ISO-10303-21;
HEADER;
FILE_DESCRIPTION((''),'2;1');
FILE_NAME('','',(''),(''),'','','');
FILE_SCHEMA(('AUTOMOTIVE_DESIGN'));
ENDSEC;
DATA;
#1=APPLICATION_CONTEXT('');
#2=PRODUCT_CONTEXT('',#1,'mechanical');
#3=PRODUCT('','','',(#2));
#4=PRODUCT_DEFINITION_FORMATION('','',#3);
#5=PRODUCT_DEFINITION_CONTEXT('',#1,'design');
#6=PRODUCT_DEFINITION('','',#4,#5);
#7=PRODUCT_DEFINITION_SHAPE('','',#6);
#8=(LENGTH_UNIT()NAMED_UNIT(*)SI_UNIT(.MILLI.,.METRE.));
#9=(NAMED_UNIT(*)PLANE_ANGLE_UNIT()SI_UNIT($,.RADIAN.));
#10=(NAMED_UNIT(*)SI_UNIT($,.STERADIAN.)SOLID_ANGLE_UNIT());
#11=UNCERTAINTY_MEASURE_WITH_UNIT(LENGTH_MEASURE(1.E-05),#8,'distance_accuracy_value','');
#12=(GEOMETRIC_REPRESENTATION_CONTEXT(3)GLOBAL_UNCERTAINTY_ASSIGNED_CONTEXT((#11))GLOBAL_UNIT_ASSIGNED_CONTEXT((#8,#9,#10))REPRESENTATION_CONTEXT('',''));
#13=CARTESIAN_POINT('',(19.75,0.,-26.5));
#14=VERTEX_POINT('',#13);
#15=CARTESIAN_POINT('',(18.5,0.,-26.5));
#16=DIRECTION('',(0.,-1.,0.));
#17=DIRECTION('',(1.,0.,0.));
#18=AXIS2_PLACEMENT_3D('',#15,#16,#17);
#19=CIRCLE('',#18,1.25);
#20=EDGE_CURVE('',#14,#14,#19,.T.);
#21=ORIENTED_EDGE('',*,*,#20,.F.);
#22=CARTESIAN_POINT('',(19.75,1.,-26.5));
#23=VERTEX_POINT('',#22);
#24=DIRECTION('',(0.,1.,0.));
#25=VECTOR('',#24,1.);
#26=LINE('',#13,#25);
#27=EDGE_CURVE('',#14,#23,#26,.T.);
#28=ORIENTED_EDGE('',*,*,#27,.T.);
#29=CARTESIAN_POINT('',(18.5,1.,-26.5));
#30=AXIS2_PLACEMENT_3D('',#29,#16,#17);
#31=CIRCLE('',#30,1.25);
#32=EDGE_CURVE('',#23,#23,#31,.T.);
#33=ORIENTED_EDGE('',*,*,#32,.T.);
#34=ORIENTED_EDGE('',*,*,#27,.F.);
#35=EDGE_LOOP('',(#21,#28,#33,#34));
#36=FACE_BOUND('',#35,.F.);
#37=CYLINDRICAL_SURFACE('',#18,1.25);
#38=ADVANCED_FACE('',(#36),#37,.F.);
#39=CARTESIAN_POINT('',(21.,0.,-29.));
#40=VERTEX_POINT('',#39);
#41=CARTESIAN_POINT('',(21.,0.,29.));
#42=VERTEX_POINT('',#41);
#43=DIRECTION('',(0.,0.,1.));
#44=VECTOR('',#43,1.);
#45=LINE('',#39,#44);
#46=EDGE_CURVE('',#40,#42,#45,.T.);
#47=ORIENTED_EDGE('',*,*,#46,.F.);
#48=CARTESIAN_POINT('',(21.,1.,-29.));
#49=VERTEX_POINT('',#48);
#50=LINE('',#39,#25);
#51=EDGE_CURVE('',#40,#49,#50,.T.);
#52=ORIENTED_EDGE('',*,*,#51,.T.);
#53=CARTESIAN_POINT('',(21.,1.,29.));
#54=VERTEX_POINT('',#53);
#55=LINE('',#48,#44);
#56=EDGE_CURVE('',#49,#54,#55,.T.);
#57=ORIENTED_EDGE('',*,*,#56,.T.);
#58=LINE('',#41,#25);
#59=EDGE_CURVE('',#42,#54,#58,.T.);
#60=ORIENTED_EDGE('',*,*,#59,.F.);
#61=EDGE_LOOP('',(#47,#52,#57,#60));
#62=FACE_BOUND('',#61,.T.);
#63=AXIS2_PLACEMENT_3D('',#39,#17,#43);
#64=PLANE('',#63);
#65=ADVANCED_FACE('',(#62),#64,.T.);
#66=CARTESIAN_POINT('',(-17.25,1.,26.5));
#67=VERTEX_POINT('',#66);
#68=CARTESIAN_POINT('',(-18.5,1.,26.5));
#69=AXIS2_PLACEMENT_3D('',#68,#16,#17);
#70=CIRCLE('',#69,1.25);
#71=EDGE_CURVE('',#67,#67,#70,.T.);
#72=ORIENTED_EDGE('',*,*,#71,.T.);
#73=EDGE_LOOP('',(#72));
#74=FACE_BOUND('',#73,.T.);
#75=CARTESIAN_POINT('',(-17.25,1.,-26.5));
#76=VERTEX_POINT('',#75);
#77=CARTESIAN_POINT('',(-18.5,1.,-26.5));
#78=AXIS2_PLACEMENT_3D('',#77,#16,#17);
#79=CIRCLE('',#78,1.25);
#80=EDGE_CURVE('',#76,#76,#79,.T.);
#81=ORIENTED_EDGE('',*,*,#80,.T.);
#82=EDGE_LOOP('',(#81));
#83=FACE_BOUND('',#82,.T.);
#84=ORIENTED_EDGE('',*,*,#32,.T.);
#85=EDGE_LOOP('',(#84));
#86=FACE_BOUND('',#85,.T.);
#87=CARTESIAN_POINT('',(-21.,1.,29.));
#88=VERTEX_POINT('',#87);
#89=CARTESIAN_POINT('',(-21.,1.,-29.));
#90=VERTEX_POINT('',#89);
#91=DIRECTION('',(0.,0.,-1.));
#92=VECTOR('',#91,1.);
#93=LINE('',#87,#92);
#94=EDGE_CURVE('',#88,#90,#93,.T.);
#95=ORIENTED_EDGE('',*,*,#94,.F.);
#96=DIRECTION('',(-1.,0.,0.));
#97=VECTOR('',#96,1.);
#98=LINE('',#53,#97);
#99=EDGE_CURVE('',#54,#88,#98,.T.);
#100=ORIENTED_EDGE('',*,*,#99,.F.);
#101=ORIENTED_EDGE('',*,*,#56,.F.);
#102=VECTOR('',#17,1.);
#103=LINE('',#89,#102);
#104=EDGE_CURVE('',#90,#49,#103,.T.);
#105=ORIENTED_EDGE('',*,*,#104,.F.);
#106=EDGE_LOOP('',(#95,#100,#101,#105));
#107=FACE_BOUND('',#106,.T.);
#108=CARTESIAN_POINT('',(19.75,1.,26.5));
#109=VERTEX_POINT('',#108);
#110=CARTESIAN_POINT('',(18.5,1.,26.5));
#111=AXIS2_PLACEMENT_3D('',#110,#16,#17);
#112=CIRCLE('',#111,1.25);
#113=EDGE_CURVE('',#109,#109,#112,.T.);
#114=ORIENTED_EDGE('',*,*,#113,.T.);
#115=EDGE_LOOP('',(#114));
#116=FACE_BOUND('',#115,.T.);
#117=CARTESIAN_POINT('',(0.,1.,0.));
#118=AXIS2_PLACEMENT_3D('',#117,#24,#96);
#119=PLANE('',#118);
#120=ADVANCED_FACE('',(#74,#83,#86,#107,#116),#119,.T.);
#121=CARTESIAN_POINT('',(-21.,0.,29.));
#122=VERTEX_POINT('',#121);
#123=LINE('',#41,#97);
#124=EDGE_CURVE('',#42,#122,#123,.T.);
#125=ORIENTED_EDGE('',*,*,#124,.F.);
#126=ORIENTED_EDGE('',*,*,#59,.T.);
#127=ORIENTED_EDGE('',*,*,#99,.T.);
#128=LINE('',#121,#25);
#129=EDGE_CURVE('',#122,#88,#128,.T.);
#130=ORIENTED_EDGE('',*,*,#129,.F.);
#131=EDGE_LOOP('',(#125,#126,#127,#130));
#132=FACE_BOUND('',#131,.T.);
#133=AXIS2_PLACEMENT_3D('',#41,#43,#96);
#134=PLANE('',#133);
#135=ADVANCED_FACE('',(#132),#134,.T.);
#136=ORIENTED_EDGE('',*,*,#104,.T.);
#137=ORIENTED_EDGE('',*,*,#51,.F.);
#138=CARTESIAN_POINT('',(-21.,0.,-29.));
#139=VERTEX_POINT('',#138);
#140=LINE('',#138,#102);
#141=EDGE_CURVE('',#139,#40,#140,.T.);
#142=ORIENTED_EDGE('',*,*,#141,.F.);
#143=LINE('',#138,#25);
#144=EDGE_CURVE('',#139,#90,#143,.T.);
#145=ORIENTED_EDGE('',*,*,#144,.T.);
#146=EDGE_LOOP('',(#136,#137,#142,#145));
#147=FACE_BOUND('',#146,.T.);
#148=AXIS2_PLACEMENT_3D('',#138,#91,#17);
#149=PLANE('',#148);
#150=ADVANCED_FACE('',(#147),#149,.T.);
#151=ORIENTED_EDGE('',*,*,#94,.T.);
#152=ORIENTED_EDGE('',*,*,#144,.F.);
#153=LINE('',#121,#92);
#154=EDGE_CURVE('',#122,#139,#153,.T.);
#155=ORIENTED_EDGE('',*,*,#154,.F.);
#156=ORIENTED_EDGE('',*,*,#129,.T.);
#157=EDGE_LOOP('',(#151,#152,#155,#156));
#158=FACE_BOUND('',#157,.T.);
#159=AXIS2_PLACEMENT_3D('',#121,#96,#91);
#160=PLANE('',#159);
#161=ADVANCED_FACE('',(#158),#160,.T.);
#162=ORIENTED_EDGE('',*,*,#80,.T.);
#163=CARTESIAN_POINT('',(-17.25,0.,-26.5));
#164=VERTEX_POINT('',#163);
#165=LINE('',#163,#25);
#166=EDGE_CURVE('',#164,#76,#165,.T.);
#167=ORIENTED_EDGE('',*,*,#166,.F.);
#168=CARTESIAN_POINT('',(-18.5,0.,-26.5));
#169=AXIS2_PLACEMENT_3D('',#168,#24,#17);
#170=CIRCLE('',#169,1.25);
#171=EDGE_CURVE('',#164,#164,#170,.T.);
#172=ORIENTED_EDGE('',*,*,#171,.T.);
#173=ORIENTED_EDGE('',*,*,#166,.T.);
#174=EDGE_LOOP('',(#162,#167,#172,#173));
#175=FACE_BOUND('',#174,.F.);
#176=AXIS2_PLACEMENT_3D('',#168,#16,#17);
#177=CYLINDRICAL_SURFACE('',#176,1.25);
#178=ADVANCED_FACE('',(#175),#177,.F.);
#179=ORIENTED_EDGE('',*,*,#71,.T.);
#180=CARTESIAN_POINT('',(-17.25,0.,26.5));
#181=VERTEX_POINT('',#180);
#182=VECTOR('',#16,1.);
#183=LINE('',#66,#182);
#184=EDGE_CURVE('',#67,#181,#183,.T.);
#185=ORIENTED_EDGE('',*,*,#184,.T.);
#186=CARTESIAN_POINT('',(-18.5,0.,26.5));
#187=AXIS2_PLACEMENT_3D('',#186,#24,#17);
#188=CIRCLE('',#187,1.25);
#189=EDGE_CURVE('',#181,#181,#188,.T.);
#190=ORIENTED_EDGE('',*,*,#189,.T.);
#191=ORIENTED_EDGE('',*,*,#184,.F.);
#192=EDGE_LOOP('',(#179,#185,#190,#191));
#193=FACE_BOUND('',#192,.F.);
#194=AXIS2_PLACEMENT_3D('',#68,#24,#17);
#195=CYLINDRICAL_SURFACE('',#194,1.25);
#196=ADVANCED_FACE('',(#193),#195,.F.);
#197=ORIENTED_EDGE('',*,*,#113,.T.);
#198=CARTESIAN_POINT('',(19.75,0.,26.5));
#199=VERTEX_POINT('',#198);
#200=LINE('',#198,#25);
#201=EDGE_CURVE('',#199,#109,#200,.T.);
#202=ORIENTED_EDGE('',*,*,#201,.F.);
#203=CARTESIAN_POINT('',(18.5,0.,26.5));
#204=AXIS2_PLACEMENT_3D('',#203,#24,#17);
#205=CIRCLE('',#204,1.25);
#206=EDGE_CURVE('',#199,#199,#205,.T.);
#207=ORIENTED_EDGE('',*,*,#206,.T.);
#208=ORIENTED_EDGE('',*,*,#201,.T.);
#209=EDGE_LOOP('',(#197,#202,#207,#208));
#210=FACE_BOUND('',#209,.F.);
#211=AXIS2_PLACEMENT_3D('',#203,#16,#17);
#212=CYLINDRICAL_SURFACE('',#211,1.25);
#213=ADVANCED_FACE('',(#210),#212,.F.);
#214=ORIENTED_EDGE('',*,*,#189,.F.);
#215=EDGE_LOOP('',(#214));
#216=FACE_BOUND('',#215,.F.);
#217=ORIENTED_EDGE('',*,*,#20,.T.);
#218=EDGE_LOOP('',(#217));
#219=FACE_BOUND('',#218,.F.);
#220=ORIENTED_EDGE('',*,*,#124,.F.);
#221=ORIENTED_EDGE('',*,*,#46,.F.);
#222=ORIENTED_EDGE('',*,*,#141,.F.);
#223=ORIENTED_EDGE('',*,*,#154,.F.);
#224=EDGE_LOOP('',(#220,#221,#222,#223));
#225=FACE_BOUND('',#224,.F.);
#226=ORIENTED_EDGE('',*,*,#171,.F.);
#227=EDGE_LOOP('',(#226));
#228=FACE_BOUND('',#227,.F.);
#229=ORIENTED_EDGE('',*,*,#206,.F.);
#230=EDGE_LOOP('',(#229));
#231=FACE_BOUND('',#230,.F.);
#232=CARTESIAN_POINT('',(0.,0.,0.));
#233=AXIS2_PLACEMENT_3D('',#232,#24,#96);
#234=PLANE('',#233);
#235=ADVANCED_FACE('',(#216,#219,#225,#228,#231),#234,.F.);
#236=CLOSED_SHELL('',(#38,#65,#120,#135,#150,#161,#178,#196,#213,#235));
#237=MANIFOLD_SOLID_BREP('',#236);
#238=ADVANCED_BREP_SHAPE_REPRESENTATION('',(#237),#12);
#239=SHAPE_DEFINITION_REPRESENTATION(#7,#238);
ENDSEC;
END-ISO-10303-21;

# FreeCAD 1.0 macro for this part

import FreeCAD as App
import Part
import Sketcher


def add_polygon(sketch, points):
    """Adds a closed chain of lines whose ends are joined by coincident constraints."""
    first, n = sketch.GeometryCount, len(points)
    for a, b in zip(points, points[1:] + points[:1]):
        sketch.addGeometry(Part.LineSegment(App.Vector(*a, 0), App.Vector(*b, 0)), False)
    for i in range(n):
        sketch.addConstraint(Sketcher.Constraint("Coincident", first + i, 2, first + (i + 1) % n, 1))

doc = App.newDocument("Part")
body = doc.addObject("PartDesign::Body", "Body")

sketch1 = body.newObject("Sketcher::SketchObject", "Sketch")
sketch1.AttachmentSupport = (doc.getObject("XZ_Plane"), [""])
sketch1.MapMode = "FlatFace"
add_polygon(sketch1, [(-21, 29), (21, 29), (21, -29), (-21, -29)])
sketch1.addConstraint(Sketcher.Constraint("Horizontal", 0))
sketch1.addConstraint(Sketcher.Constraint("Vertical", 1))
sketch1.addConstraint(Sketcher.Constraint("Horizontal", 2))
sketch1.addConstraint(Sketcher.Constraint("Vertical", 3))
sketch1.addConstraint(Sketcher.Constraint("Symmetric", 0, 2, 2, 2, -1, 1))
sketch1.addConstraint(Sketcher.Constraint("DistanceX", 0, 1, 0, 2, 42.0))
sketch1.addConstraint(Sketcher.Constraint("DistanceY", 1, 2, 1, 1, 58.0))
pad1 = body.newObject("PartDesign::Pad", "Pad")
pad1.Profile = sketch1
pad1.Length = 1
pad1.Reversed = True

sketch2 = body.newObject("Sketcher::SketchObject", "Sketch001")
sketch2.AttachmentSupport = (doc.getObject("XZ_Plane"), [""])
sketch2.MapMode = "FlatFace"
sketch2.addGeometry(Part.Circle(App.Vector(18.5, 26.5, 0), App.Vector(0, 0, 1), 1.2), False)
sketch2.addConstraint(Sketcher.Constraint("Diameter", 0, 2.5))
sketch2.addConstraint(Sketcher.Constraint("DistanceX", -1, 1, 0, 3, 18.5))
sketch2.addConstraint(Sketcher.Constraint("DistanceY", -1, 1, 0, 3, 26.5))
pocket1 = body.newObject("PartDesign::Pocket", "Pocket")
pocket1.Profile = sketch2
pocket1.Type = "ThroughAll"

sketch3 = body.newObject("Sketcher::SketchObject", "Sketch002")
sketch3.AttachmentSupport = (doc.getObject("XZ_Plane"), [""])
sketch3.MapMode = "FlatFace"
sketch3.addGeometry(Part.Circle(App.Vector(-18.5, -26.5, 0), App.Vector(0, 0, 1), 1.2), False)
sketch3.addConstraint(Sketcher.Constraint("Diameter", 0, 2.5))
sketch3.addConstraint(Sketcher.Constraint("DistanceX", 0, 3, -1, 1, 18.5))
sketch3.addConstraint(Sketcher.Constraint("DistanceY", 0, 3, -1, 1, 26.5))
pocket2 = body.newObject("PartDesign::Pocket", "Pocket001")
pocket2.Profile = sketch3
pocket2.Type = "ThroughAll"

sketch4 = body.newObject("Sketcher::SketchObject", "Sketch003")
sketch4.AttachmentSupport = (doc.getObject("XZ_Plane"), [""])
sketch4.MapMode = "FlatFace"
sketch4.AttachmentOffset = App.Placement(App.Vector(0, 0, -1), App.Rotation())
sketch4.addGeometry(Part.Circle(App.Vector(-18.5, 26.5, 0), App.Vector(0, 0, 1), 1.2), False)
sketch4.addConstraint(Sketcher.Constraint("Diameter", 0, 2.5))
sketch4.addConstraint(Sketcher.Constraint("DistanceX", 0, 3, -1, 1, 18.5))
sketch4.addConstraint(Sketcher.Constraint("DistanceY", -1, 1, 0, 3, 26.5))
pocket3 = body.newObject("PartDesign::Pocket", "Pocket002")
pocket3.Profile = sketch4
pocket3.Type = "UpToFirst"
pocket3.Reversed = True

sketch5 = body.newObject("Sketcher::SketchObject", "Sketch004")
sketch5.AttachmentSupport = (doc.getObject("XZ_Plane"), [""])
sketch5.MapMode = "FlatFace"
sketch5.addGeometry(Part.Circle(App.Vector(18.5, -26.5, 0), App.Vector(0, 0, 1), 1.2), False)
sketch5.addConstraint(Sketcher.Constraint("Diameter", 0, 2.5))
sketch5.addConstraint(Sketcher.Constraint("DistanceX", -1, 1, 0, 3, 18.5))
sketch5.addConstraint(Sketcher.Constraint("DistanceY", 0, 3, -1, 1, 26.5))
pocket4 = body.newObject("PartDesign::Pocket", "Pocket003")
pocket4.Profile = sketch5
pocket4.Type = "UpToFirst"

doc.recompute()
